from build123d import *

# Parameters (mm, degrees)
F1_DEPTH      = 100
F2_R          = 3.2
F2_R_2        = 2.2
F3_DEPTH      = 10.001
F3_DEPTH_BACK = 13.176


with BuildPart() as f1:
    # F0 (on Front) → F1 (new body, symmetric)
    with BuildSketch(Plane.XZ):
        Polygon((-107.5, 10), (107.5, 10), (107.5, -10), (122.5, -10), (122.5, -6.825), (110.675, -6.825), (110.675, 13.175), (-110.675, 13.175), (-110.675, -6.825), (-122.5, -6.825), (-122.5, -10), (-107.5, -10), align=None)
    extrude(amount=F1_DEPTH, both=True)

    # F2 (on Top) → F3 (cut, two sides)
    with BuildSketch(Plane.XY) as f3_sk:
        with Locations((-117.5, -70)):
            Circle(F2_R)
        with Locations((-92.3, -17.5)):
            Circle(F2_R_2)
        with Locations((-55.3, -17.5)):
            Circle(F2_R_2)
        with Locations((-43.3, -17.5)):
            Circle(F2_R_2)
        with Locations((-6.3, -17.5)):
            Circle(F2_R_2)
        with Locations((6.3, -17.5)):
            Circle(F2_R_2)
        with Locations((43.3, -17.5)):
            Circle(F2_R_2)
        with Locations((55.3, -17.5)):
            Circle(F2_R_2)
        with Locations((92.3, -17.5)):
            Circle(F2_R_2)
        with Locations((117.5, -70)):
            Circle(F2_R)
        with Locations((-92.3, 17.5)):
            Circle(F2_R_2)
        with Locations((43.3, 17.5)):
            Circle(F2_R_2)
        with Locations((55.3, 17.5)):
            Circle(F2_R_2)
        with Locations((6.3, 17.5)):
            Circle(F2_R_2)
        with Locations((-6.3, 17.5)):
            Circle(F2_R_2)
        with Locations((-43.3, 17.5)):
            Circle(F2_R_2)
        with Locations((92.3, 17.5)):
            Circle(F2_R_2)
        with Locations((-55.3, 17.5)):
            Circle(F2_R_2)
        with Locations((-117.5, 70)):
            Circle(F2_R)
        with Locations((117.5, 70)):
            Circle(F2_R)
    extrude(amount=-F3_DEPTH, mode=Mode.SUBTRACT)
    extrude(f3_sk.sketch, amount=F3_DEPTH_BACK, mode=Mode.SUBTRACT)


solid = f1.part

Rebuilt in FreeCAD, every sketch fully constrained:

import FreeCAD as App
import Part
import Sketcher
Q = App.Units.Quantity


def add_polygon(sketch, points):
    """Adds a closed chain of lines whose ends are joined by coincident constraints."""
    first, n = sketch.GeometryCount, len(points)
    for a, b in zip(points, points[1:] + points[:1]):
        sketch.addGeometry(Part.LineSegment(App.Vector(*a, 0), App.Vector(*b, 0)), False)
    for i in range(n):
        sketch.addConstraint(Sketcher.Constraint("Coincident", first + i, 2, first + (i + 1) % n, 1))

doc = App.newDocument("Part")
body = doc.addObject("PartDesign::Body", "Body")

# Sketch on XZ plane
sketch1 = body.newObject("Sketcher::SketchObject", "Sketch")
sketch1.AttachmentSupport = (doc.getObject("XZ_Plane"), [""])
sketch1.MapMode = "FlatFace"
add_polygon(sketch1, [(-107.5, 10), (107.5, 10), (107.5, -10), (122.5, -10), (122.5, -6.825), (110.675, -6.825), (110.675, 13.175), (-110.675, 13.175), (-110.675, -6.825), (-122.5, -6.825), (-122.5, -10), (-107.5, -10)])  # lines 0-11
sketch1.addConstraint([
    Sketcher.Constraint("Horizontal", 0),
    Sketcher.Constraint("Vertical", 1),
    Sketcher.Constraint("Horizontal", 2),
    Sketcher.Constraint("Vertical", 3),
    Sketcher.Constraint("Horizontal", 4),
    Sketcher.Constraint("Vertical", 5),
    Sketcher.Constraint("Horizontal", 6),
    Sketcher.Constraint("Vertical", 7),
    Sketcher.Constraint("Horizontal", 8),
    Sketcher.Constraint("Vertical", 9),
    Sketcher.Constraint("Horizontal", 10),
    Sketcher.Constraint("Vertical", 11),
    Sketcher.Constraint("Symmetric", 0, 2, 10, 2, -1, 1),
    Sketcher.Constraint("Symmetric", 4, 2, 7, 2, -2),
    Sketcher.Constraint("Symmetric", 2, 2, 9, 2, -2),
    Sketcher.Constraint("Equal", 1, 5),
    Sketcher.Constraint("DistanceX", 0, 1, 0, 2, Q("215 mm")),
    Sketcher.Constraint("DistanceX", 2, 1, 2, 2, Q("15 mm")),
    Sketcher.Constraint("DistanceY", 1, 2, 1, 1, Q("20 mm")),
    Sketcher.Constraint("DistanceX", 6, 2, 6, 1, Q("221.35 mm")),
    Sketcher.Constraint("DistanceY", 3, 1, 3, 2, Q("3.175 mm")),
])
pad1 = body.newObject("PartDesign::Pad", "Pad")
pad1.Profile = sketch1
pad1.Length = 200
pad1.Midplane = True

# Sketch on XY plane
sketch2 = body.newObject("Sketcher::SketchObject", "Sketch001")
sketch2.AttachmentSupport = (doc.getObject("XY_Plane"), [""])
sketch2.MapMode = "FlatFace"
sketch2.addGeometry([
    Part.Circle(App.Vector(-117.5, -70, 0), App.Vector(0, 0, 1), 3.2),  # 0
    Part.Circle(App.Vector(-92.3, -17.5, 0), App.Vector(0, 0, 1), 2.2),  # 1
    Part.Circle(App.Vector(-55.3, -17.5, 0), App.Vector(0, 0, 1), 2.2),  # 2
    Part.Circle(App.Vector(-43.3, -17.5, 0), App.Vector(0, 0, 1), 2.2),  # 3
    Part.Circle(App.Vector(-6.3, -17.5, 0), App.Vector(0, 0, 1), 2.2),  # 4
    Part.Circle(App.Vector(6.3, -17.5, 0), App.Vector(0, 0, 1), 2.2),  # 5
    Part.Circle(App.Vector(43.3, -17.5, 0), App.Vector(0, 0, 1), 2.2),  # 6
    Part.Circle(App.Vector(55.3, -17.5, 0), App.Vector(0, 0, 1), 2.2),  # 7
    Part.Circle(App.Vector(92.3, -17.5, 0), App.Vector(0, 0, 1), 2.2),  # 8
    Part.Circle(App.Vector(117.5, -70, 0), App.Vector(0, 0, 1), 3.2),  # 9
    Part.Circle(App.Vector(-92.3, 17.5, 0), App.Vector(0, 0, 1), 2.2),  # 10
    Part.Circle(App.Vector(43.3, 17.5, 0), App.Vector(0, 0, 1), 2.2),  # 11
    Part.Circle(App.Vector(55.3, 17.5, 0), App.Vector(0, 0, 1), 2.2),  # 12
    Part.Circle(App.Vector(6.3, 17.5, 0), App.Vector(0, 0, 1), 2.2),  # 13
    Part.Circle(App.Vector(-6.3, 17.5, 0), App.Vector(0, 0, 1), 2.2),  # 14
    Part.Circle(App.Vector(-43.3, 17.5, 0), App.Vector(0, 0, 1), 2.2),  # 15
    Part.Circle(App.Vector(92.3, 17.5, 0), App.Vector(0, 0, 1), 2.2),  # 16
    Part.Circle(App.Vector(-55.3, 17.5, 0), App.Vector(0, 0, 1), 2.2),  # 17
    Part.Circle(App.Vector(-117.5, 70, 0), App.Vector(0, 0, 1), 3.2),  # 18
    Part.Circle(App.Vector(117.5, 70, 0), App.Vector(0, 0, 1), 3.2),  # 19
], False)
sketch2.addConstraint([
    Sketcher.Constraint("Equal", 1, 2),
    Sketcher.Constraint("Equal", 2, 3),
    Sketcher.Constraint("Equal", 3, 4),
    Sketcher.Constraint("Equal", 4, 5),
    Sketcher.Constraint("Equal", 5, 6),
    Sketcher.Constraint("Equal", 6, 7),
    Sketcher.Constraint("Equal", 7, 8),
    Sketcher.Constraint("Equal", 0, 9),
    Sketcher.Constraint("Equal", 8, 10),
    Sketcher.Constraint("Equal", 10, 11),
    Sketcher.Constraint("Equal", 11, 12),
    Sketcher.Constraint("Equal", 12, 13),
    Sketcher.Constraint("Equal", 13, 14),
    Sketcher.Constraint("Equal", 14, 15),
    Sketcher.Constraint("Equal", 15, 16),
    Sketcher.Constraint("Equal", 16, 17),
    Sketcher.Constraint("Equal", 9, 18),
    Sketcher.Constraint("Equal", 18, 19),
    Sketcher.Constraint("Symmetric", 8, 3, 10, 3, -1, 1),
    Sketcher.Constraint("Symmetric", 3, 3, 11, 3, -1, 1),
    Sketcher.Constraint("Symmetric", 2, 3, 12, 3, -1, 1),
    Sketcher.Constraint("Symmetric", 4, 3, 13, 3, -1, 1),
    Sketcher.Constraint("Symmetric", 5, 3, 14, 3, -1, 1),
    Sketcher.Constraint("Symmetric", 6, 3, 15, 3, -1, 1),
    Sketcher.Constraint("Symmetric", 1, 3, 16, 3, -1, 1),
    Sketcher.Constraint("Symmetric", 7, 3, 17, 3, -1, 1),
    Sketcher.Constraint("Symmetric", 9, 3, 18, 3, -1, 1),
    Sketcher.Constraint("Symmetric", 0, 3, 19, 3, -1, 1),
    Sketcher.Constraint("Symmetric", 4, 3, 5, 3, -2),
    Sketcher.Constraint("Symmetric", 3, 3, 6, 3, -2),
    Sketcher.Constraint("Symmetric", 2, 3, 7, 3, -2),
    Sketcher.Constraint("Symmetric", 1, 3, 8, 3, -2),
    Sketcher.Constraint("Symmetric", 0, 3, 9, 3, -2),
    Sketcher.Constraint("Horizontal", 1, 3, 2, 3),
    Sketcher.Constraint("Horizontal", 2, 3, 3, 3),
    Sketcher.Constraint("Horizontal", 3, 3, 4, 3),
    Sketcher.Constraint("Diameter", 0, Q("6.4 mm")),
    Sketcher.Constraint("Diameter", 1, Q("4.4 mm")),
    Sketcher.Constraint("DistanceY", 0, 3, -1, 1, Q("70 mm")),
    Sketcher.Constraint("DistanceX", 1, 3, 2, 3, Q("37 mm")),
    Sketcher.Constraint("DistanceX", 2, 3, 3, 3, Q("12 mm")),
    Sketcher.Constraint("DistanceX", 3, 3, 4, 3, Q("37 mm")),
    Sketcher.Constraint("DistanceY", 1, 3, 10, 3, Q("35 mm")),
    Sketcher.Constraint("DistanceX", 0, 3, -1, 1, Q("117.5 mm")),
    Sketcher.Constraint("DistanceX", 1, 3, -1, 1, Q("92.3 mm")),
])
pocket1 = body.newObject("PartDesign::Pocket", "Pocket")
pocket1.Profile = sketch2
pocket1.Type = "ThroughAll"
pocket1.Midplane = True

doc.recompute()
